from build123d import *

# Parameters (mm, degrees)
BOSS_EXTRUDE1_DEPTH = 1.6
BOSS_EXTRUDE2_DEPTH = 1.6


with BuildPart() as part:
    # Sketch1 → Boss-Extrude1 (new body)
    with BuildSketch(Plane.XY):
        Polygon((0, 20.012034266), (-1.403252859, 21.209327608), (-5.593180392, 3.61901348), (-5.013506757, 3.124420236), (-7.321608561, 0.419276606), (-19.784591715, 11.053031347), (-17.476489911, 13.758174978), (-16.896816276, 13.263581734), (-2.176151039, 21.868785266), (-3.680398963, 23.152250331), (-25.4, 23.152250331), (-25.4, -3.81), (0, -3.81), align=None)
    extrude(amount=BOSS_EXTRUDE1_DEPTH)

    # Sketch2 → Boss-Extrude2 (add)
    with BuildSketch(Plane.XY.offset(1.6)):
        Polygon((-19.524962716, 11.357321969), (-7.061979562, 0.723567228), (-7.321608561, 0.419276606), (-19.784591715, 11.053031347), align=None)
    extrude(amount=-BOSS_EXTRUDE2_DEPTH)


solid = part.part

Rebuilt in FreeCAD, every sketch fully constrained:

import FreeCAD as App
import Part
import Sketcher
Q = App.Units.Quantity

doc = App.newDocument("Part")
body = doc.addObject("PartDesign::Body", "Body")

sketch1 = body.newObject("Sketcher::SketchObject", "Sketch")
sketch1.AttachmentSupport = (doc.getObject("XY_Plane"), [""])
sketch1.MapMode = "FlatFace"
sketch1.addGeometry(Part.LineSegment(App.Vector(0, 20.012034, 0), App.Vector(-1.403253, 21.209328, 0)), False)
sketch1.addGeometry(Part.LineSegment(App.Vector(-1.403253, 21.209328, 0), App.Vector(-5.59318, 3.619013, 0)), False)
sketch1.addGeometry(Part.LineSegment(App.Vector(-5.59318, 3.619013, 0), App.Vector(-5.013507, 3.12442, 0)), False)
sketch1.addGeometry(Part.LineSegment(App.Vector(-5.013507, 3.12442, 0), App.Vector(-7.321609, 0.419277, 0)), False)
sketch1.addGeometry(Part.LineSegment(App.Vector(-7.321609, 0.419277, 0), App.Vector(-19.784592, 11.053031, 0)), False)
sketch1.addGeometry(Part.LineSegment(App.Vector(-19.784592, 11.053031, 0), App.Vector(-17.47649, 13.758175, 0)), False)
sketch1.addGeometry(Part.LineSegment(App.Vector(-17.47649, 13.758175, 0), App.Vector(-16.896816, 13.263582, 0)), False)
sketch1.addGeometry(Part.LineSegment(App.Vector(-16.896816, 13.263582, 0), App.Vector(-2.176151, 21.868785, 0)), False)
sketch1.addGeometry(Part.LineSegment(App.Vector(-2.176151, 21.868785, 0), App.Vector(-3.680399, 23.15225, 0)), False)
sketch1.addGeometry(Part.LineSegment(App.Vector(-3.680399, 23.15225, 0), App.Vector(-25.4, 23.15225, 0)), False)
sketch1.addGeometry(Part.LineSegment(App.Vector(-25.4, 23.15225, 0), App.Vector(-25.4, -3.81, 0)), False)
sketch1.addGeometry(Part.LineSegment(App.Vector(-25.4, -3.81, 0), App.Vector(0, -3.81, 0)), False)
sketch1.addGeometry(Part.LineSegment(App.Vector(0, -3.81, 0), App.Vector(0, 20.012034, 0)), False)
sketch1.addConstraint(Sketcher.Constraint("Coincident", 0, 2, 1, 1))
sketch1.addConstraint(Sketcher.Constraint("Coincident", 1, 2, 2, 1))
sketch1.addConstraint(Sketcher.Constraint("Coincident", 2, 2, 3, 1))
sketch1.addConstraint(Sketcher.Constraint("Coincident", 3, 2, 4, 1))
sketch1.addConstraint(Sketcher.Constraint("Coincident", 4, 2, 5, 1))
sketch1.addConstraint(Sketcher.Constraint("Coincident", 5, 2, 6, 1))
sketch1.addConstraint(Sketcher.Constraint("Coincident", 6, 2, 7, 1))
sketch1.addConstraint(Sketcher.Constraint("Coincident", 7, 2, 8, 1))
sketch1.addConstraint(Sketcher.Constraint("Coincident", 8, 2, 9, 1))
sketch1.addConstraint(Sketcher.Constraint("Coincident", 9, 2, 10, 1))
sketch1.addConstraint(Sketcher.Constraint("Coincident", 10, 2, 11, 1))
sketch1.addConstraint(Sketcher.Constraint("Coincident", 11, 2, 12, 1))
sketch1.addConstraint(Sketcher.Constraint("Coincident", 12, 2, 0, 1))
sketch1.addConstraint(Sketcher.Constraint("Horizontal", 9))
sketch1.addConstraint(Sketcher.Constraint("Vertical", 10))
sketch1.addConstraint(Sketcher.Constraint("Horizontal", 11))
sketch1.addConstraint(Sketcher.Constraint("Vertical", 12))
sketch1.addConstraint(Sketcher.Constraint("PointOnObject", 11, 2, -2))
sketch1.addConstraint(Sketcher.Constraint("Parallel", 0, 2))
sketch1.addConstraint(Sketcher.Constraint("Perpendicular", 2, 3))
sketch1.addConstraint(Sketcher.Constraint("Perpendicular", 3, 4))
sketch1.addConstraint(Sketcher.Constraint("Perpendicular", 4, 5))
sketch1.addConstraint(Sketcher.Constraint("Perpendicular", 5, 6))
sketch1.addConstraint(Sketcher.Constraint("Parallel", 6, 8))
sketch1.addConstraint(Sketcher.Constraint("Equal", 3, 5))
sketch1.addConstraint(Sketcher.Constraint("Equal", 2, 6))
sketch1.addConstraint(Sketcher.Constraint("DistanceX", 11, 1, 11, 2, Q("1 in")))
sketch1.addConstraint(Sketcher.Constraint("Distance", 2, Q("0.03 in")))
sketch1.addConstraint(Sketcher.Constraint("Distance", 3, Q("0.14 in")))
sketch1.addConstraint(Sketcher.Constraint("DistanceY", 10, 2, -1, 1, Q("0.15 in")))
sketch1.addConstraint(Sketcher.Constraint("Distance", 4, Q("0.645 in")))
sketch1.addConstraint(Sketcher.Constraint("DistanceX", 9, 2, 9, 1, Q("21.719601 mm")))
sketch1.addConstraint(Sketcher.Constraint("DistanceY", 10, 2, 10, 1, Q("26.96225 mm")))
sketch1.addConstraint(Sketcher.Constraint("DistanceX", 3, 2, 2, 2, Q("2.308102 mm")))
sketch1.addConstraint(Sketcher.Constraint("DistanceX", 7, 2, 0, 2, Q("0.772898 mm")))
sketch1.addConstraint(Sketcher.Constraint("Distance", 0, Q("1.844622 mm")))
sketch1.addConstraint(Sketcher.Constraint("Distance", 1, Q("18.08244 mm")))
sketch1.addConstraint(Sketcher.Constraint("Distance", 7, Q("17.05132 mm")))
sketch1.addConstraint(Sketcher.Constraint("DistanceY", 12, 1, 12, 2, Q("23.822034 mm")))
pad1 = body.newObject("PartDesign::Pad", "Pad")
pad1.Profile = sketch1
pad1.Length = 1.6

sketch2 = body.newObject("Sketcher::SketchObject", "Sketch001")
sketch2.AttachmentSupport = (doc.getObject("XY_Plane"), [""])
sketch2.MapMode = "FlatFace"
sketch2.AttachmentOffset = App.Placement(App.Vector(0, 0, 1.6), App.Rotation())
sketch2.addGeometry(Part.LineSegment(App.Vector(-7.06198, 0.723567, 0), App.Vector(-19.524963, 11.357322, 0)), False)
sketch2.addGeometry(Part.LineSegment(App.Vector(-19.524963, 11.357322, 0), App.Vector(-19.784592, 11.053031, 0)), False)
sketch2.addGeometry(Part.LineSegment(App.Vector(-19.784592, 11.053031, 0), App.Vector(-7.321609, 0.419277, 0)), False)
sketch2.addGeometry(Part.LineSegment(App.Vector(-7.321609, 0.419277, 0), App.Vector(-7.06198, 0.723567, 0)), False)
sketch2.addConstraint(Sketcher.Constraint("Coincident", 0, 2, 1, 1))
sketch2.addConstraint(Sketcher.Constraint("Coincident", 1, 2, 2, 1))
sketch2.addConstraint(Sketcher.Constraint("Coincident", 2, 2, 3, 1))
sketch2.addConstraint(Sketcher.Constraint("Coincident", 3, 2, 0, 1))
sketch2.addConstraint(Sketcher.Constraint("Distance", 0, Q("0.645 in")))
sketch2.addConstraint(Sketcher.Constraint("Distance", 2, Q("0.645 in")))
sketch2.addConstraint(Sketcher.Constraint("Distance", 1, Q("0.4 mm")))
sketch2.addConstraint(Sketcher.Constraint("Distance", 3, Q("0.4 mm")))
sketch2.addConstraint(Sketcher.Constraint("DistanceY", -1, 1, 0, 2, Q("11.357322 mm")))
sketch2.addConstraint(Sketcher.Constraint("DistanceX", 1, 2, -1, 1, Q("19.784592 mm")))
sketch2.addConstraint(Sketcher.Constraint("DistanceY", -1, 1, 1, 2, Q("11.053031 mm")))
sketch2.addConstraint(Sketcher.Constraint("DistanceX", 2, 2, -1, 1, Q("7.321609 mm")))
pad2 = body.newObject("PartDesign::Pad", "Pad001")
pad2.Profile = sketch2
pad2.Length = 1.6
pad2.Reversed = True

doc.recompute()
